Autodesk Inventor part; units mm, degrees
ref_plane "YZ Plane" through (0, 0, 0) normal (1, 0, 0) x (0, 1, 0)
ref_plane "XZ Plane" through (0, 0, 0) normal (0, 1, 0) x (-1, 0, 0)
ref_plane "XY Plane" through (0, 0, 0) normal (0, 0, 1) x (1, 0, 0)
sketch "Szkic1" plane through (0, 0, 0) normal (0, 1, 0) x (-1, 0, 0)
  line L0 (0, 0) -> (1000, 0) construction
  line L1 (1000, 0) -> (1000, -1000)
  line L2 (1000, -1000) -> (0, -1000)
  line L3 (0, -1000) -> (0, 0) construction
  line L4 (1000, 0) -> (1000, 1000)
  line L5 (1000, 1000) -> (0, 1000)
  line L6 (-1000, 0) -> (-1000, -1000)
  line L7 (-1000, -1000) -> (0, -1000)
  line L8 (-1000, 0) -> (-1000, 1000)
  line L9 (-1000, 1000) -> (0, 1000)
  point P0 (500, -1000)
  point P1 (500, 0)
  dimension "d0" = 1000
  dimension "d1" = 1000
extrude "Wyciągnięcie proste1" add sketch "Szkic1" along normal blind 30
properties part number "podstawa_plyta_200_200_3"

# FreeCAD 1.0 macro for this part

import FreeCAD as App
import Part
import Sketcher


def add_polygon(sketch, points):
    """Adds a closed chain of lines whose ends are joined by coincident constraints."""
    first, n = sketch.GeometryCount, len(points)
    for a, b in zip(points, points[1:] + points[:1]):
        sketch.addGeometry(Part.LineSegment(App.Vector(*a, 0), App.Vector(*b, 0)), False)
    for i in range(n):
        sketch.addConstraint(Sketcher.Constraint("Coincident", first + i, 2, first + (i + 1) % n, 1))

doc = App.newDocument("Part")
body = doc.addObject("PartDesign::Body", "Body")

# Sketch on XZ plane
sketch1 = body.newObject("Sketcher::SketchObject", "Sketch")
sketch1.AttachmentSupport = (doc.getObject("XZ_Plane"), [""])
sketch1.MapMode = "FlatFace"
add_polygon(sketch1, [(-1000, -1000), (-1000, 1000), (1000, 1000), (1000, -1000)])  # lines 0-3
sketch1.addConstraint(Sketcher.Constraint("Vertical", 0))
sketch1.addConstraint(Sketcher.Constraint("Horizontal", 1))
sketch1.addConstraint(Sketcher.Constraint("Vertical", 2))
sketch1.addConstraint(Sketcher.Constraint("Horizontal", 3))
sketch1.addConstraint(Sketcher.Constraint("Symmetric", 0, 2, 2, 2, -1, 1))
sketch1.addConstraint(Sketcher.Constraint("Equal", 3, 0))
sketch1.addConstraint(Sketcher.Constraint("DistanceX", 0, 2, -1, 1, 1000.0))
pad1 = body.newObject("PartDesign::Pad", "Pad")
pad1.Profile = sketch1
pad1.Length = 30
pad1.Reversed = True

doc.recompute()
